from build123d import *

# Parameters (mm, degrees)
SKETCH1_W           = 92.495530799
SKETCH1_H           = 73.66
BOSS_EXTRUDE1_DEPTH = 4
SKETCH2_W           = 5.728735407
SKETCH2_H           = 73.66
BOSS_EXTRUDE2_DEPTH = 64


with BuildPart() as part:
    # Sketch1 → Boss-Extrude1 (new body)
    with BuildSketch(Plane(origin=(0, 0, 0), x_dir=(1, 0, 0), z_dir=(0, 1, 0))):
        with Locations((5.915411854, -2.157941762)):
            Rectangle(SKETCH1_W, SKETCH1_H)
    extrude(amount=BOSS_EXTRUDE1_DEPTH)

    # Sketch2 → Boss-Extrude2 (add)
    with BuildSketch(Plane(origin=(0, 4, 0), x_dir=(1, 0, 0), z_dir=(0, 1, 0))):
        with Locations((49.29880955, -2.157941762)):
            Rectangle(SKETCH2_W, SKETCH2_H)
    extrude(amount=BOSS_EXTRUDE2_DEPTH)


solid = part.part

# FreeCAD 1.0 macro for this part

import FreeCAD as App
import Part
import Sketcher

V = App.Vector

doc = App.newDocument("Part")
body = doc.addObject("PartDesign::Body", "Body")

# Sketch on XZ plane
sketch1 = doc.addObject("Sketcher::SketchObject", "Sketch")
body.addObject(sketch1)
sketch1.AttachmentSupport = (doc.XZ_Plane, [""])
sketch1.MapMode = "FlatFace"
sketch1.addGeometry([
    Part.LineSegment(V(-40, -35, 0), V(-40, 39, 0)),
    Part.LineSegment(V(-40, 39, 0), V(52, 39, 0)),
    Part.LineSegment(V(52, 39, 0), V(52, -35, 0)),
    Part.LineSegment(V(52, -35, 0), V(-40, -35, 0)),
], False)
sketch1.addConstraint([
    Sketcher.Constraint("Coincident", 0, 2, 1, 1),
    Sketcher.Constraint("Coincident", 1, 2, 2, 1),
    Sketcher.Constraint("Coincident", 2, 2, 3, 1),
    Sketcher.Constraint("Coincident", 3, 2, 0, 1),
    Sketcher.Constraint("Vertical", 0),
    Sketcher.Constraint("Horizontal", 1),
    Sketcher.Constraint("Vertical", 2),
    Sketcher.Constraint("Horizontal", 3),
    Sketcher.Constraint("DistanceY", 0, 1, 0, 2, 73.66),
    Sketcher.Constraint("DistanceX", 1, 1, 1, 2, 92.495531),
    Sketcher.Constraint("DistanceY", -1, 1, 0, 2, 38.987942),
    Sketcher.Constraint("DistanceX", 0, 2, -1, 1, 40.332354),
])
pad1 = doc.addObject("PartDesign::Pad", "Pad")
body.addObject(pad1)
pad1.Profile = sketch1
pad1.Length = 4
pad1.Reversed = True

# Sketch on XZ plane
sketch2 = doc.addObject("Sketcher::SketchObject", "Sketch001")
body.addObject(sketch2)
sketch2.AttachmentSupport = (doc.XZ_Plane, [""])
sketch2.MapMode = "FlatFace"
sketch2.AttachmentOffset = App.Placement(V(0, 0, -4), App.Rotation())
sketch2.addGeometry([
    Part.LineSegment(V(46, -35, 0), V(46, 39, 0)),
    Part.LineSegment(V(46, 39, 0), V(52, 39, 0)),
    Part.LineSegment(V(52, 39, 0), V(52, -35, 0)),
    Part.LineSegment(V(52, -35, 0), V(46, -35, 0)),
], False)
sketch2.addConstraint([
    Sketcher.Constraint("Coincident", 0, 2, 1, 1),
    Sketcher.Constraint("Coincident", 1, 2, 2, 1),
    Sketcher.Constraint("Coincident", 2, 2, 3, 1),
    Sketcher.Constraint("Coincident", 3, 2, 0, 1),
    Sketcher.Constraint("Vertical", 0),
    Sketcher.Constraint("Horizontal", 1),
    Sketcher.Constraint("Vertical", 2),
    Sketcher.Constraint("Horizontal", 3),
    Sketcher.Constraint("DistanceY", 0, 1, 0, 2, 73.66),
    Sketcher.Constraint("DistanceX", 1, 1, 1, 2, 5.728735),
    Sketcher.Constraint("DistanceX", -1, 1, 0, 2, 46.434442),
    Sketcher.Constraint("DistanceY", -1, 1, 0, 2, 38.987942),
])
pad2 = doc.addObject("PartDesign::Pad", "Pad001")
body.addObject(pad2)
pad2.Profile = sketch2
pad2.Length = 64
pad2.Reversed = True

doc.recompute()
